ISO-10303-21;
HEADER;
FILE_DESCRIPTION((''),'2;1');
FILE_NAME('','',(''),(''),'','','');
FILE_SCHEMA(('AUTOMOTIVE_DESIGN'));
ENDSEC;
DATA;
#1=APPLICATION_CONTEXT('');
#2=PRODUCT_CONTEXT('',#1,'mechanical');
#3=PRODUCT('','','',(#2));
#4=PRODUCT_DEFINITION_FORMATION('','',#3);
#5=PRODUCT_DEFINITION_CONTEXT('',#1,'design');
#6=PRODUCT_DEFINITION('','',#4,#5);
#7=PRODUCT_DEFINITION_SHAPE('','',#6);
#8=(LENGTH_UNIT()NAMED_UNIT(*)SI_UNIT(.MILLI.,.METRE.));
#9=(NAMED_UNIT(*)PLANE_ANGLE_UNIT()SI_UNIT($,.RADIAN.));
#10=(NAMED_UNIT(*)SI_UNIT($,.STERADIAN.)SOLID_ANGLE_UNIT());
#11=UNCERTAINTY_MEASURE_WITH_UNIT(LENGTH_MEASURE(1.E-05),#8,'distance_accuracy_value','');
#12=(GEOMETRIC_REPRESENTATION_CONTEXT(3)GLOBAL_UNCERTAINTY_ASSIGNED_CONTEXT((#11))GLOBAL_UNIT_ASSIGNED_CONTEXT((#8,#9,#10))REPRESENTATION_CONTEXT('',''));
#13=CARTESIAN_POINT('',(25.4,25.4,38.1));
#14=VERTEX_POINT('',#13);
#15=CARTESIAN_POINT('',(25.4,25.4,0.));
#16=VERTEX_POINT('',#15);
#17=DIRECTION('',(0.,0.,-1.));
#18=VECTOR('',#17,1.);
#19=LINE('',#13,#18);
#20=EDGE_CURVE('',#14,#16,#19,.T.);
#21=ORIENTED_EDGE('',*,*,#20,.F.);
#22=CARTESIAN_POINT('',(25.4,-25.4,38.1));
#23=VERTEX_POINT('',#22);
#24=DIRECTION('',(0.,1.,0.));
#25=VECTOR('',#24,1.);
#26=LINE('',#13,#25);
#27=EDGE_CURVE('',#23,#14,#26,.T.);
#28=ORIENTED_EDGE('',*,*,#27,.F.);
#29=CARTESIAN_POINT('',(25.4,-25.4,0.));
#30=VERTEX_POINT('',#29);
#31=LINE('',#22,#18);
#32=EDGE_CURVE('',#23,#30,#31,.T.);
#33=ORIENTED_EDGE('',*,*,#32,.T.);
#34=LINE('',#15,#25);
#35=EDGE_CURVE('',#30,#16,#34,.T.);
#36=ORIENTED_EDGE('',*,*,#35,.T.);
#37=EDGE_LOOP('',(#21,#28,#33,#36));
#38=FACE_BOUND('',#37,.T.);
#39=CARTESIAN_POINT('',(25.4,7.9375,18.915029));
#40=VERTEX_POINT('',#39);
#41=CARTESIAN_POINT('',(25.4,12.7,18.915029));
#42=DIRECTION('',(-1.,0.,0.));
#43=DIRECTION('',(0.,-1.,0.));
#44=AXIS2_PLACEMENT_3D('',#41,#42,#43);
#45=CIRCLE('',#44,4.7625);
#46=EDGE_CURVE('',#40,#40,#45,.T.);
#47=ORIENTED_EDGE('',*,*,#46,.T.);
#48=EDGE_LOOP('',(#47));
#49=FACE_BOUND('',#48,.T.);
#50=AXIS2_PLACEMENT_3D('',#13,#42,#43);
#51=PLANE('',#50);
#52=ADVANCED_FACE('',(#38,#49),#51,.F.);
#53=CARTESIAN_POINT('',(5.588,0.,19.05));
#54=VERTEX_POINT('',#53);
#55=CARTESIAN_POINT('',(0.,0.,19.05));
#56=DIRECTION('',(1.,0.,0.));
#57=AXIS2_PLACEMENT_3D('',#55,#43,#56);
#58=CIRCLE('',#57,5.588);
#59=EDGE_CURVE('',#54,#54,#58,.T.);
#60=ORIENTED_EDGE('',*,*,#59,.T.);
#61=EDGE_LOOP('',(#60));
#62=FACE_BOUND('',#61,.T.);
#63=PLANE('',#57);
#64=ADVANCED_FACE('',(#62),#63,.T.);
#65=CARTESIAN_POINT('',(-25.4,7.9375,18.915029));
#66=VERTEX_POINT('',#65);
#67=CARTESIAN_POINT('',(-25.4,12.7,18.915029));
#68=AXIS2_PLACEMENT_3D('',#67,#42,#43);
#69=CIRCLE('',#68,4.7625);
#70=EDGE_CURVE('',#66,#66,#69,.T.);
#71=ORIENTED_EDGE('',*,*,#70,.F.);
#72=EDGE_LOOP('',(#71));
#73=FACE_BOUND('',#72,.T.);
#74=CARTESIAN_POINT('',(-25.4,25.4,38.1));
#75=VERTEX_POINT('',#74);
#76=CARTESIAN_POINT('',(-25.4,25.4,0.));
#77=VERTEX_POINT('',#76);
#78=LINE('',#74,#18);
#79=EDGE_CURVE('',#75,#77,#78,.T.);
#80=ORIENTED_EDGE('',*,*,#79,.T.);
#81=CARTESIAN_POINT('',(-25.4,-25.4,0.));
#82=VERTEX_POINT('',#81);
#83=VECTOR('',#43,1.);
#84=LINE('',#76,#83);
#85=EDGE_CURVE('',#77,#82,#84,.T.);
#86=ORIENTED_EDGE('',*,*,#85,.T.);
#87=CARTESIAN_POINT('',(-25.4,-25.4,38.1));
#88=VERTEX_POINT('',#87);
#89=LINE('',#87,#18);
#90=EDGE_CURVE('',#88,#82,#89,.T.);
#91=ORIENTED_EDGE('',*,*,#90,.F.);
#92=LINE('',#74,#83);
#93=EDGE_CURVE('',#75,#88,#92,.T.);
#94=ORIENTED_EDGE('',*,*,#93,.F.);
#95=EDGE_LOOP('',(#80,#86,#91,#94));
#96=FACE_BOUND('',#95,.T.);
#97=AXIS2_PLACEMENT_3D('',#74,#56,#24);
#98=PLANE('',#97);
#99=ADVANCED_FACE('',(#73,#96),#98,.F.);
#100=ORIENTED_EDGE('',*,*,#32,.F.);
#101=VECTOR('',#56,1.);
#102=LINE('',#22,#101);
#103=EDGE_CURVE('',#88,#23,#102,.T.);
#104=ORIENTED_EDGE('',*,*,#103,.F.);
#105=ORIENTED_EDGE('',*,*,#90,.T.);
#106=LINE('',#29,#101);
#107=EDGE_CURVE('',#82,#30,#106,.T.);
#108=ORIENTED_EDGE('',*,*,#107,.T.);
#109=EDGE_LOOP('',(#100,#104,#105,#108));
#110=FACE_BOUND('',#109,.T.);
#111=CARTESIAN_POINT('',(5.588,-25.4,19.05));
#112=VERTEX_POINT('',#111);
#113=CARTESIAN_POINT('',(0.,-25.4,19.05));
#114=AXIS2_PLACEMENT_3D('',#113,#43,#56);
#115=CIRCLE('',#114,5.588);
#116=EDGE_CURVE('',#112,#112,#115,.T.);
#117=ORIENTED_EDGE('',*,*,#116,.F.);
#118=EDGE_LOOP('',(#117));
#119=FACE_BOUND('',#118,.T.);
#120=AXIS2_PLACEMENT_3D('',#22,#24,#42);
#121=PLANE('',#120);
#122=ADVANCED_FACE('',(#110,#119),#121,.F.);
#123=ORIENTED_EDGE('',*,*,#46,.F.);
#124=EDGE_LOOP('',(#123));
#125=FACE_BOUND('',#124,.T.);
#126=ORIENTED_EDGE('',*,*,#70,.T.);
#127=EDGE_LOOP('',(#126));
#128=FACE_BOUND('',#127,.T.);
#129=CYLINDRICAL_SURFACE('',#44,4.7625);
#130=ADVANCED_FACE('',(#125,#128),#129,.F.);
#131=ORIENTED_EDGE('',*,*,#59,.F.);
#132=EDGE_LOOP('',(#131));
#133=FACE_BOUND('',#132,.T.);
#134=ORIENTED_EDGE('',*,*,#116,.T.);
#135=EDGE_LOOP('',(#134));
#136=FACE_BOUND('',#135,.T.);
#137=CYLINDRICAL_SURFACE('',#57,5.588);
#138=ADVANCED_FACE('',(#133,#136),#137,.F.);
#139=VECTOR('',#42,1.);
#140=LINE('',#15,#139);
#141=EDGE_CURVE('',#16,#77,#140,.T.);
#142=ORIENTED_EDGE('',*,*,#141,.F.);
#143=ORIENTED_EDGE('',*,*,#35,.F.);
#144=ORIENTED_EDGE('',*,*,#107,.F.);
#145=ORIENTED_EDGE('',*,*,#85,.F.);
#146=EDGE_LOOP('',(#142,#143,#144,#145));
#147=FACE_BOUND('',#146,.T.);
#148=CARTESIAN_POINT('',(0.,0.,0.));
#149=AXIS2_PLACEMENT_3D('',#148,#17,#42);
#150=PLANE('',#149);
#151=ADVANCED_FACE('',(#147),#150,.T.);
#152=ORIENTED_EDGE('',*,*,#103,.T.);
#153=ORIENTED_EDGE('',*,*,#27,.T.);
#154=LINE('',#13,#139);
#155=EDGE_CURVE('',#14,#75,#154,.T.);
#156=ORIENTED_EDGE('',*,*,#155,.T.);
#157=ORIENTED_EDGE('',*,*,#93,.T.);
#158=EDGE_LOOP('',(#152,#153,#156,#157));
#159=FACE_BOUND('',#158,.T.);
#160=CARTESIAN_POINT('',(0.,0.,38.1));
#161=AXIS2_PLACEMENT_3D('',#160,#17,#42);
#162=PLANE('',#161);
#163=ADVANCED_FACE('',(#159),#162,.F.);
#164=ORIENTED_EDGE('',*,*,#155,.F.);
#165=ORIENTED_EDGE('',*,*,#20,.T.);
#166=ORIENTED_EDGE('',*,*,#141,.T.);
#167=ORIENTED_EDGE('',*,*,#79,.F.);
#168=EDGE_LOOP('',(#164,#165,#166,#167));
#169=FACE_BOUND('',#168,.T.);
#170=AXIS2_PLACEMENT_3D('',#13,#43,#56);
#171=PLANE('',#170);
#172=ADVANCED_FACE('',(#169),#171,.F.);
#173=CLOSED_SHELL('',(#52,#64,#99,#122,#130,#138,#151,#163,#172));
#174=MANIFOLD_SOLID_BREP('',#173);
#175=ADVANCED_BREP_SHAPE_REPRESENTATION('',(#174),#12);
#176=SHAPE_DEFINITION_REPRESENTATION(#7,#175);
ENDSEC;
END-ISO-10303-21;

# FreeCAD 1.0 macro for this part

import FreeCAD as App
import Part
import Sketcher
from FreeCAD import Vector
Q = App.Units.Quantity


def add_polygon(sketch, points):
    """Adds a closed chain of lines whose ends are joined by coincident constraints."""
    first, n = sketch.GeometryCount, len(points)
    for a, b in zip(points, points[1:] + points[:1]):
        sketch.addGeometry(Part.LineSegment(App.Vector(*a, 0), App.Vector(*b, 0)), False)
    for i in range(n):
        sketch.addConstraint(Sketcher.Constraint("Coincident", first + i, 2, first + (i + 1) % n, 1))

doc = App.newDocument("Part")
body = doc.addObject("PartDesign::Body", "Body")

sketch1 = body.newObject("Sketcher::SketchObject", "Sketch")
sketch1.AttachmentSupport = (doc.getObject("XY_Plane"), [""])
sketch1.MapMode = "FlatFace"
add_polygon(sketch1, [(-25, 25), (-25, -25), (25, -25), (25, 25)])
sketch1.addConstraint(Sketcher.Constraint("Vertical", 0))
sketch1.addConstraint(Sketcher.Constraint("Horizontal", 1))
sketch1.addConstraint(Sketcher.Constraint("Vertical", 2))
sketch1.addConstraint(Sketcher.Constraint("Horizontal", 3))
sketch1.addConstraint(Sketcher.Constraint("Symmetric", 0, 2, 2, 2, -1, 1))
sketch1.addConstraint(Sketcher.Constraint("Equal", 3, 0))
sketch1.addConstraint(Sketcher.Constraint("DistanceX", 1, 1, 1, 2, Q("2 in")))
pad1 = body.newObject("PartDesign::Pad", "Pad")
pad1.Profile = sketch1
pad1.Length = Q("1.5 in")

sketch2 = body.newObject("Sketcher::SketchObject", "Sketch001")
sketch2.AttachmentSupport = (doc.getObject("XZ_Plane"), [""])
sketch2.MapMode = "FlatFace"
sketch2.AttachmentOffset = App.Placement(Vector(0, 0, 1 * 25.4), App.Rotation())
sketch2.addGeometry(Part.Circle(Vector(0, 19, 0), Vector(0, 0, 1), 6), False)
sketch2.addConstraint(Sketcher.Constraint("PointOnObject", 0, 3, -2))
sketch2.addConstraint(Sketcher.Constraint("Diameter", 0, Q("0.44 in")))
sketch2.addConstraint(Sketcher.Constraint("DistanceY", -1, 1, 0, 3, Q("0.75 in")))
pocket1 = body.newObject("PartDesign::Pocket", "Pocket")
pocket1.Profile = sketch2
pocket1.Length = Q("1 in")

sketch3 = body.newObject("Sketcher::SketchObject", "Sketch002")
sketch3.AttachmentSupport = (doc.getObject("YZ_Plane"), [""])
sketch3.MapMode = "FlatFace"
sketch3.AttachmentOffset = App.Placement(Vector(0, 0, -1 * 25.4), App.Rotation())
sketch3.addGeometry(Part.Circle(Vector(12.7, 18.9, 0), Vector(0, 0, 1), 4.8), False)
sketch3.addConstraint(Sketcher.Constraint("Diameter", 0, Q("0.375 in")))
sketch3.addConstraint(Sketcher.Constraint("DistanceX", -1, 1, 0, 3, Q("0.5 in")))
sketch3.addConstraint(Sketcher.Constraint("DistanceY", -1, 1, 0, 3, 18.915029))
pocket2 = body.newObject("PartDesign::Pocket", "Pocket001")
pocket2.Profile = sketch3
pocket2.Type = "ThroughAll"
pocket2.Reversed = True

doc.recompute()
